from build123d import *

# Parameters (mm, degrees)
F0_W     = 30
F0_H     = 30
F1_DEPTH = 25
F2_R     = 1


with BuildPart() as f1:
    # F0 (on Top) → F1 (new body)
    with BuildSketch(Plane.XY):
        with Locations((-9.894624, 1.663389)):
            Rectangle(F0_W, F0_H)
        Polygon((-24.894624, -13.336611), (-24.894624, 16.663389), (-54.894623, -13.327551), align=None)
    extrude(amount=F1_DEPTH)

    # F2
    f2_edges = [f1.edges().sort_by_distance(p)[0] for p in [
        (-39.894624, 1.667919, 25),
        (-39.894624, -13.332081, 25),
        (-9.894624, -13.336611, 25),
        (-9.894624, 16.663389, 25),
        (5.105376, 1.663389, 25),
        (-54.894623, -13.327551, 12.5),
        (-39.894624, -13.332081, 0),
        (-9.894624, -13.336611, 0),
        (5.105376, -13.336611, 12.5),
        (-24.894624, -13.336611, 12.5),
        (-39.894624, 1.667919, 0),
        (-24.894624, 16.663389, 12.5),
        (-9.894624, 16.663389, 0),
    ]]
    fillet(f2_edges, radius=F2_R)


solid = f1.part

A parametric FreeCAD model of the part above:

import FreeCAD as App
import Part
import Sketcher
from FreeCAD import Vector


def edges_at(feature, points):
    """Names of the edges that pass closest to the given points."""
    edges = feature.Shape.Edges
    near = lambda p: min(range(len(edges)), key=lambda i: edges[i].distToShape(Part.Vertex(*p))[0])
    return sorted({f"Edge{near(p) + 1}" for p in points})


def add_polygon(sketch, points):
    """Adds a closed chain of lines whose ends are joined by coincident constraints."""
    first, n = sketch.GeometryCount, len(points)
    for a, b in zip(points, points[1:] + points[:1]):
        sketch.addGeometry(Part.LineSegment(App.Vector(*a, 0), App.Vector(*b, 0)), False)
    for i in range(n):
        sketch.addConstraint(Sketcher.Constraint("Coincident", first + i, 2, first + (i + 1) % n, 1))

doc = App.newDocument("Part")
params = doc.addObject("Spreadsheet::Sheet", "Params")
for row, (alias, value) in enumerate([
    ("sketch1_width", "30 mm"),
    ("sketch1_length", "30 mm"),
    ("sketch1_length2", "42.42 mm"),
    ("pad1_length", "25 mm"),
    ("fillet_radius", "1 mm"),
], start=1):
    params.set(f"A{row}", alias)
    params.set(f"B{row}", "=" + value)
    params.setAlias(f"B{row}", alias)

body = doc.addObject("PartDesign::Body", "Body")

# Sketch on XY plane
sketch1 = body.newObject("Sketcher::SketchObject", "Sketch")
sketch1.AttachmentSupport = (doc.getObject("XY_Plane"), [""])
sketch1.MapMode = "FlatFace"
add_polygon(sketch1, [(-25, -13), (5, -13), (5, 17), (-25, 17), (-55, -13)])  # lines 0-4
sketch1.addConstraint(Sketcher.Constraint("Horizontal", 0))
sketch1.addConstraint(Sketcher.Constraint("Vertical", 1))
sketch1.addConstraint(Sketcher.Constraint("Horizontal", 2))
sketch1.addConstraint(Sketcher.Constraint("Vertical", 2, 2, 4, 2))
sketch1.addConstraint(Sketcher.Constraint("Equal", 2, 1))
sketch1.addConstraint(Sketcher.Constraint("DistanceX", 0, 1, 0, 2, 30.0))
sketch1.addConstraint(Sketcher.Constraint("Distance", 4, 30.0))
sketch1.addConstraint(Sketcher.Constraint("Distance", 3, 42.42))
sketch1.addConstraint(Sketcher.Constraint("DistanceY", 0, 2, -1, 1, 13.336611))
sketch1.addConstraint(Sketcher.Constraint("DistanceX", -1, 1, 0, 2, 5.105376))
sketch1.setExpression("Constraints[10]", "Params.sketch1_width")
sketch1.setExpression("Constraints[11]", "Params.sketch1_length")
sketch1.setExpression("Constraints[12]", "Params.sketch1_length2")
pad1 = body.newObject("PartDesign::Pad", "Pad")
pad1.Profile = sketch1
pad1.setExpression("Length", "Params.pad1_length")
doc.recompute()

fillet = body.newObject("PartDesign::Fillet", "Fillet")
fillet.Base = (pad1, edges_at(pad1, [
    (-39.895, 1.668, 25),
    (-39.895, -13.332, 25),
    (-9.895, -13.337, 25),
    (-9.895, 16.663, 25),
    (5.105, 1.663, 25),
    (-54.895, -13.328, 12.5),
    (-39.895, -13.332, 0),
    (-9.895, -13.337, 0),
    (5.105, -13.337, 12.5),
    (-24.895, -13.337, 12.5),
    (-39.895, 1.668, 0),
    (-24.895, 16.663, 12.5),
    (-9.895, 16.663, 0),
]))
fillet.setExpression("Radius", "Params.fillet_radius")

doc.recompute()
